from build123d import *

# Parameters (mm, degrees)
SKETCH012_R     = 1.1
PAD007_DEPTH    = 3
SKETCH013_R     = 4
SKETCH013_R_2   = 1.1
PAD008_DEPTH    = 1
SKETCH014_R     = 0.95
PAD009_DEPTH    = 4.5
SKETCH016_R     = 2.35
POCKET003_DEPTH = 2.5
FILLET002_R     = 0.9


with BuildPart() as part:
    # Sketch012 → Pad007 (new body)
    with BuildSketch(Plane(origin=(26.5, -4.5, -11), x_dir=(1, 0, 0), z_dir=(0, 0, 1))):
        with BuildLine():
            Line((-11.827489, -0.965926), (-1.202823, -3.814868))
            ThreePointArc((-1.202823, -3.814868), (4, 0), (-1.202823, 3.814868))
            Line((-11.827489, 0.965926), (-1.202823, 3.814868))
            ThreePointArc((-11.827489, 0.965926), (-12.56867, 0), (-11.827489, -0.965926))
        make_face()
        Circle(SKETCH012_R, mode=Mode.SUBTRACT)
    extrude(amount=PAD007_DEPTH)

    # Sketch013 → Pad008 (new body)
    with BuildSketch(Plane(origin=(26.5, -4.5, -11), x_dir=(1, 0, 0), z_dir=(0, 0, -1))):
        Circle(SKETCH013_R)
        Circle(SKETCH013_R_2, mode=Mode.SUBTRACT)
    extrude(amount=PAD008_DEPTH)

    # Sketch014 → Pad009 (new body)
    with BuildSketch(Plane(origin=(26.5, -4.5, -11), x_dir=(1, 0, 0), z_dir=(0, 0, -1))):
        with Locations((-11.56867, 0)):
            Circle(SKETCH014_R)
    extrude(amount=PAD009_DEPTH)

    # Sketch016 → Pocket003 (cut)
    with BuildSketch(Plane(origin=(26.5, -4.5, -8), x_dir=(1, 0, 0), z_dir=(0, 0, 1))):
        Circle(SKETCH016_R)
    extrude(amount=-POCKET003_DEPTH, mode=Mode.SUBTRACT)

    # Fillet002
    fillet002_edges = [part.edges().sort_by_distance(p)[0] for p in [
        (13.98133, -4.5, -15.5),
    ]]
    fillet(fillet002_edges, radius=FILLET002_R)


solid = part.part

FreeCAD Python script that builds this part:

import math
import FreeCAD as App
import Part
import Sketcher

V = App.Vector
Q = App.Units.Quantity


def edges_at(feature, points):
    """Names of the edges that pass closest to the given points."""
    edges = feature.Shape.Edges
    near = lambda p: min(range(len(edges)), key=lambda i: edges[i].distToShape(Part.Vertex(*p))[0])
    return sorted({f"Edge{near(p) + 1}" for p in points})

doc = App.newDocument("Part")
body = doc.addObject("PartDesign::Body", "Body")

# Sketch on XY plane
sketch1 = body.newObject("Sketcher::SketchObject", "Sketch")
sketch1.AttachmentSupport = (doc.getObject("XY_Plane"), [""])
sketch1.MapMode = "FlatFace"
sketch1.AttachmentOffset = App.Placement(V(0, 0, -11), App.Rotation())
sketch1.addGeometry([
    Part.LineSegment(V(14.7, -5.5, 0), V(25.3, -8.3, 0)),  # 0
    Part.ArcOfCircle(Part.Circle(V(26.5, -4.5, 0), V(0, 0, 1), 4), math.radians(-107), math.radians(107)),  # 1
    Part.LineSegment(V(25.3, -0.7, 0), V(14.7, -3.5, 0)),  # 2
    Part.ArcOfCircle(Part.Circle(V(14.9, -4.5, 0), V(0, 0, 1), 1), math.radians(105), math.radians(255)),  # 3
    Part.Circle(V(26.5, -4.5, 0), V(0, 0, 1), 1.1),  # 4
], False)
sketch1.addConstraint([
    Sketcher.Constraint("Coincident", 0, 2, 1, 1),
    Sketcher.Constraint("Coincident", 1, 2, 2, 1),
    Sketcher.Constraint("Coincident", 2, 2, 3, 1),
    Sketcher.Constraint("Coincident", 3, 2, 0, 1),
    Sketcher.Constraint("Coincident", 4, 3, 1, 3),
    Sketcher.Constraint("Horizontal", 1, 3, 3, 3),
    Sketcher.Constraint("Vertical", 0, 2, 1, 2),
    Sketcher.Constraint("Vertical", 2, 2, 3, 2),
    Sketcher.Constraint("Radius", 1, Q("4 mm")),
    Sketcher.Constraint("Radius", 3, Q("1 mm")),
    Sketcher.Constraint("Diameter", 4, Q("2.2 mm")),
    Sketcher.Constraint("Distance", 0, Q("11 mm")),
    Sketcher.Constraint("DistanceX", -1, 1, 1, 3, Q("26.5 mm")),
    Sketcher.Constraint("DistanceY", 1, 3, -1, 1, Q("4.5 mm")),
    Sketcher.Constraint("DistanceX", -1, 1, 3, 3, Q("14.93133 mm")),
    Sketcher.Constraint("DistanceY", 1, 2, -1, 1, Q("0.685132 mm")),
])
pad1 = body.newObject("PartDesign::Pad", "Pad")
pad1.Profile = sketch1
pad1.Length = 3

# Sketch on XY plane
sketch2 = body.newObject("Sketcher::SketchObject", "Sketch001")
sketch2.AttachmentSupport = (doc.getObject("XY_Plane"), [""])
sketch2.MapMode = "FlatFace"
sketch2.AttachmentOffset = App.Placement(V(0, 0, -11), App.Rotation())
sketch2.addGeometry([
    Part.Circle(V(26.5, -4.5, 0), V(0, 0, 1), 4),
    Part.Circle(V(26.5, -4.5, 0), V(0, 0, 1), 1.1),
], False)
sketch2.addConstraint([
    Sketcher.Constraint("Coincident", 1, 3, 0, 3),
    Sketcher.Constraint("Diameter", 0, Q("8 mm")),
    Sketcher.Constraint("Diameter", 1, Q("2.2 mm")),
    Sketcher.Constraint("DistanceX", -1, 1, 0, 3, Q("26.5 mm")),
    Sketcher.Constraint("DistanceY", 0, 3, -1, 1, Q("4.5 mm")),
])
pad2 = body.newObject("PartDesign::Pad", "Pad001")
pad2.Profile = sketch2
pad2.Length = 1
pad2.Reversed = True

# Sketch on XY plane
sketch3 = body.newObject("Sketcher::SketchObject", "Sketch002")
sketch3.AttachmentSupport = (doc.getObject("XY_Plane"), [""])
sketch3.MapMode = "FlatFace"
sketch3.AttachmentOffset = App.Placement(V(0, 0, -11), App.Rotation())
sketch3.addGeometry(Part.Circle(V(14.9, -4.5, 0), V(0, 0, 1), 0.9), False)
sketch3.addConstraint([
    Sketcher.Constraint("Diameter", 0, Q("1.9 mm")),
    Sketcher.Constraint("DistanceY", 0, 3, -1, 1, Q("4.5 mm")),
    Sketcher.Constraint("DistanceX", -1, 1, 0, 3, Q("14.93133 mm")),
])
pad3 = body.newObject("PartDesign::Pad", "Pad002")
pad3.Profile = sketch3
pad3.Length = 4.5
pad3.Reversed = True

# Sketch on XY plane
sketch4 = body.newObject("Sketcher::SketchObject", "Sketch003")
sketch4.AttachmentSupport = (doc.getObject("XY_Plane"), [""])
sketch4.MapMode = "FlatFace"
sketch4.AttachmentOffset = App.Placement(V(0, 0, -8), App.Rotation())
sketch4.addGeometry(Part.Circle(V(26.5, -4.5, 0), V(0, 0, 1), 2.4), False)
sketch4.addConstraint([
    Sketcher.Constraint("Diameter", 0, Q("4.7 mm")),
    Sketcher.Constraint("DistanceX", -1, 1, 0, 3, Q("26.5 mm")),
    Sketcher.Constraint("DistanceY", 0, 3, -1, 1, Q("4.5 mm")),
])
pocket1 = body.newObject("PartDesign::Pocket", "Pocket")
pocket1.Profile = sketch4
pocket1.Length = 2.5
doc.recompute()

fillet = body.newObject("PartDesign::Fillet", "Fillet")
fillet.Base = (pocket1, edges_at(pocket1, [(13.981, -4.5, -15.5)]))
fillet.Radius = 0.9

doc.recompute()
